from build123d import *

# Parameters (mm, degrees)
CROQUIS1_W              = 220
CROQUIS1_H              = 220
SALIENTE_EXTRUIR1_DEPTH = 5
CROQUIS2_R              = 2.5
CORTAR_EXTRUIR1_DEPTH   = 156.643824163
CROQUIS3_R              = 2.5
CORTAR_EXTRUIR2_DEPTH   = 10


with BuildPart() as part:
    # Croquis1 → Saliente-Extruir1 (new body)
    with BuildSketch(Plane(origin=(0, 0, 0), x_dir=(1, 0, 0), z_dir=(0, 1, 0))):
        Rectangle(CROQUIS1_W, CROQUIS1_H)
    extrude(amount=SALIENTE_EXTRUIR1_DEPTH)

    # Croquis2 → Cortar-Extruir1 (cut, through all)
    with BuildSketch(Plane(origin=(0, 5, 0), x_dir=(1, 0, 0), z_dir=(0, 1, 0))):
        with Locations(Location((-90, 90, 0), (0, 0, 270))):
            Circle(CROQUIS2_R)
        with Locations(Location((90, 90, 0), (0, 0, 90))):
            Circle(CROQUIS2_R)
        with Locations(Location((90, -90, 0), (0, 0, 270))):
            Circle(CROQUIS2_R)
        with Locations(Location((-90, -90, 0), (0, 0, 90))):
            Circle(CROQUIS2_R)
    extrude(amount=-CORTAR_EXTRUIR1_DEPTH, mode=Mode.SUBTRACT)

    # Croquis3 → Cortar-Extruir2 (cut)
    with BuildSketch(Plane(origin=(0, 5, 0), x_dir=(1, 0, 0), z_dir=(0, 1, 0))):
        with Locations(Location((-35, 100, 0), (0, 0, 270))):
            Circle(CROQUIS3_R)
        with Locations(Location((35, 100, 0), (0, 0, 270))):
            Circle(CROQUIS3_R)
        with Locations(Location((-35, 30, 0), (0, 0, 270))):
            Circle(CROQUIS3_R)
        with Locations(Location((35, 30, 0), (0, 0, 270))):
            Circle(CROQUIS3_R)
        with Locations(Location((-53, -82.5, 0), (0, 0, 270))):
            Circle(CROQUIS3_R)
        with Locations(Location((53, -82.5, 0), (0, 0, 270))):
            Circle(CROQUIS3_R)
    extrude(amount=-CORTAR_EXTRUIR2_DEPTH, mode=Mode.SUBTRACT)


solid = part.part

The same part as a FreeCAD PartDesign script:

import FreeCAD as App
import Part
import Sketcher
Q = App.Units.Quantity

doc = App.newDocument("Part")
body = doc.addObject("PartDesign::Body", "Body")

sketch1 = body.newObject("Sketcher::SketchObject", "Sketch")
sketch1.AttachmentSupport = (doc.getObject("XZ_Plane"), [""])
sketch1.MapMode = "FlatFace"
sketch1.addGeometry([
    Part.LineSegment(App.Vector(-110, -110, 0), App.Vector(-110, 110, 0)),
    Part.LineSegment(App.Vector(-110, 110, 0), App.Vector(110, 110, 0)),
    Part.LineSegment(App.Vector(110, 110, 0), App.Vector(110, -110, 0)),
    Part.LineSegment(App.Vector(110, -110, 0), App.Vector(-110, -110, 0)),
], False)
sketch1.addConstraint([
    Sketcher.Constraint("Coincident", 0, 2, 1, 1),
    Sketcher.Constraint("Coincident", 1, 2, 2, 1),
    Sketcher.Constraint("Coincident", 2, 2, 3, 1),
    Sketcher.Constraint("Coincident", 3, 2, 0, 1),
    Sketcher.Constraint("Vertical", 0),
    Sketcher.Constraint("Horizontal", 1),
    Sketcher.Constraint("Vertical", 2),
    Sketcher.Constraint("Horizontal", 3),
    Sketcher.Constraint("Symmetric", 0, 2, 2, 2, -1, 1),
    Sketcher.Constraint("Equal", 3, 0),
    Sketcher.Constraint("DistanceX", 1, 1, 1, 2, Q("220 mm")),
])
pad1 = body.newObject("PartDesign::Pad", "Pad")
pad1.Profile = sketch1
pad1.Length = 5
pad1.Reversed = True

sketch2 = body.newObject("Sketcher::SketchObject", "Sketch001")
sketch2.AttachmentSupport = (doc.getObject("XZ_Plane"), [""])
sketch2.MapMode = "FlatFace"
sketch2.AttachmentOffset = App.Placement(App.Vector(0, 0, -5), App.Rotation())
sketch2.addGeometry([
    Part.Circle(App.Vector(-90, -90, 0), App.Vector(0, 0, 1), 2.5),
    Part.Circle(App.Vector(90, -90, 0), App.Vector(0, 0, 1), 2.5),
    Part.Circle(App.Vector(90, 90, 0), App.Vector(0, 0, 1), 2.5),
    Part.Circle(App.Vector(-90, 90, 0), App.Vector(0, 0, 1), 2.5),
], False)
sketch2.addConstraint([
    Sketcher.Constraint("Equal", 0, 1),
    Sketcher.Constraint("Equal", 1, 2),
    Sketcher.Constraint("Equal", 2, 3),
    Sketcher.Constraint("Symmetric", 0, 3, 2, 3, -1, 1),
    Sketcher.Constraint("Symmetric", 1, 3, 3, 3, -1, 1),
    Sketcher.Constraint("Symmetric", 0, 3, 1, 3, -2),
    Sketcher.Constraint("Diameter", 0, Q("5 mm")),
    Sketcher.Constraint("DistanceX", 0, 3, -1, 1, Q("90 mm")),
    Sketcher.Constraint("DistanceY", 0, 3, -1, 1, Q("90 mm")),
])
pocket1 = body.newObject("PartDesign::Pocket", "Pocket")
pocket1.Profile = sketch2
pocket1.Type = "ThroughAll"
pocket1.Reversed = True

sketch3 = body.newObject("Sketcher::SketchObject", "Sketch002")
sketch3.AttachmentSupport = (doc.getObject("XZ_Plane"), [""])
sketch3.MapMode = "FlatFace"
sketch3.AttachmentOffset = App.Placement(App.Vector(0, 0, -5), App.Rotation())
sketch3.addGeometry([
    Part.Circle(App.Vector(-35, -100, 0), App.Vector(0, 0, 1), 2.5),
    Part.Circle(App.Vector(35, -100, 0), App.Vector(0, 0, 1), 2.5),
    Part.Circle(App.Vector(-35, -30, 0), App.Vector(0, 0, 1), 2.5),
    Part.Circle(App.Vector(35, -30, 0), App.Vector(0, 0, 1), 2.5),
    Part.Circle(App.Vector(-53, 82.5, 0), App.Vector(0, 0, 1), 2.5),
    Part.Circle(App.Vector(53, 82.5, 0), App.Vector(0, 0, 1), 2.5),
], False)
sketch3.addConstraint([
    Sketcher.Constraint("Equal", 0, 1),
    Sketcher.Constraint("Equal", 1, 2),
    Sketcher.Constraint("Equal", 2, 3),
    Sketcher.Constraint("Equal", 3, 4),
    Sketcher.Constraint("Equal", 4, 5),
    Sketcher.Constraint("Symmetric", 0, 3, 1, 3, -2),
    Sketcher.Constraint("Symmetric", 2, 3, 3, 3, -2),
    Sketcher.Constraint("Symmetric", 4, 3, 5, 3, -2),
    Sketcher.Constraint("Vertical", 0, 3, 2, 3),
    Sketcher.Constraint("Diameter", 0, Q("5 mm")),
    Sketcher.Constraint("DistanceX", 0, 3, -1, 1, Q("35 mm")),
    Sketcher.Constraint("DistanceY", 0, 3, -1, 1, Q("100 mm")),
    Sketcher.Constraint("DistanceY", 2, 3, -1, 1, Q("30 mm")),
    Sketcher.Constraint("DistanceX", 4, 3, -1, 1, Q("53 mm")),
    Sketcher.Constraint("DistanceY", -1, 1, 4, 3, Q("82.5 mm")),
])
pocket2 = body.newObject("PartDesign::Pocket", "Pocket001")
pocket2.Profile = sketch3
pocket2.Length = 10
pocket2.Reversed = True

doc.recompute()
